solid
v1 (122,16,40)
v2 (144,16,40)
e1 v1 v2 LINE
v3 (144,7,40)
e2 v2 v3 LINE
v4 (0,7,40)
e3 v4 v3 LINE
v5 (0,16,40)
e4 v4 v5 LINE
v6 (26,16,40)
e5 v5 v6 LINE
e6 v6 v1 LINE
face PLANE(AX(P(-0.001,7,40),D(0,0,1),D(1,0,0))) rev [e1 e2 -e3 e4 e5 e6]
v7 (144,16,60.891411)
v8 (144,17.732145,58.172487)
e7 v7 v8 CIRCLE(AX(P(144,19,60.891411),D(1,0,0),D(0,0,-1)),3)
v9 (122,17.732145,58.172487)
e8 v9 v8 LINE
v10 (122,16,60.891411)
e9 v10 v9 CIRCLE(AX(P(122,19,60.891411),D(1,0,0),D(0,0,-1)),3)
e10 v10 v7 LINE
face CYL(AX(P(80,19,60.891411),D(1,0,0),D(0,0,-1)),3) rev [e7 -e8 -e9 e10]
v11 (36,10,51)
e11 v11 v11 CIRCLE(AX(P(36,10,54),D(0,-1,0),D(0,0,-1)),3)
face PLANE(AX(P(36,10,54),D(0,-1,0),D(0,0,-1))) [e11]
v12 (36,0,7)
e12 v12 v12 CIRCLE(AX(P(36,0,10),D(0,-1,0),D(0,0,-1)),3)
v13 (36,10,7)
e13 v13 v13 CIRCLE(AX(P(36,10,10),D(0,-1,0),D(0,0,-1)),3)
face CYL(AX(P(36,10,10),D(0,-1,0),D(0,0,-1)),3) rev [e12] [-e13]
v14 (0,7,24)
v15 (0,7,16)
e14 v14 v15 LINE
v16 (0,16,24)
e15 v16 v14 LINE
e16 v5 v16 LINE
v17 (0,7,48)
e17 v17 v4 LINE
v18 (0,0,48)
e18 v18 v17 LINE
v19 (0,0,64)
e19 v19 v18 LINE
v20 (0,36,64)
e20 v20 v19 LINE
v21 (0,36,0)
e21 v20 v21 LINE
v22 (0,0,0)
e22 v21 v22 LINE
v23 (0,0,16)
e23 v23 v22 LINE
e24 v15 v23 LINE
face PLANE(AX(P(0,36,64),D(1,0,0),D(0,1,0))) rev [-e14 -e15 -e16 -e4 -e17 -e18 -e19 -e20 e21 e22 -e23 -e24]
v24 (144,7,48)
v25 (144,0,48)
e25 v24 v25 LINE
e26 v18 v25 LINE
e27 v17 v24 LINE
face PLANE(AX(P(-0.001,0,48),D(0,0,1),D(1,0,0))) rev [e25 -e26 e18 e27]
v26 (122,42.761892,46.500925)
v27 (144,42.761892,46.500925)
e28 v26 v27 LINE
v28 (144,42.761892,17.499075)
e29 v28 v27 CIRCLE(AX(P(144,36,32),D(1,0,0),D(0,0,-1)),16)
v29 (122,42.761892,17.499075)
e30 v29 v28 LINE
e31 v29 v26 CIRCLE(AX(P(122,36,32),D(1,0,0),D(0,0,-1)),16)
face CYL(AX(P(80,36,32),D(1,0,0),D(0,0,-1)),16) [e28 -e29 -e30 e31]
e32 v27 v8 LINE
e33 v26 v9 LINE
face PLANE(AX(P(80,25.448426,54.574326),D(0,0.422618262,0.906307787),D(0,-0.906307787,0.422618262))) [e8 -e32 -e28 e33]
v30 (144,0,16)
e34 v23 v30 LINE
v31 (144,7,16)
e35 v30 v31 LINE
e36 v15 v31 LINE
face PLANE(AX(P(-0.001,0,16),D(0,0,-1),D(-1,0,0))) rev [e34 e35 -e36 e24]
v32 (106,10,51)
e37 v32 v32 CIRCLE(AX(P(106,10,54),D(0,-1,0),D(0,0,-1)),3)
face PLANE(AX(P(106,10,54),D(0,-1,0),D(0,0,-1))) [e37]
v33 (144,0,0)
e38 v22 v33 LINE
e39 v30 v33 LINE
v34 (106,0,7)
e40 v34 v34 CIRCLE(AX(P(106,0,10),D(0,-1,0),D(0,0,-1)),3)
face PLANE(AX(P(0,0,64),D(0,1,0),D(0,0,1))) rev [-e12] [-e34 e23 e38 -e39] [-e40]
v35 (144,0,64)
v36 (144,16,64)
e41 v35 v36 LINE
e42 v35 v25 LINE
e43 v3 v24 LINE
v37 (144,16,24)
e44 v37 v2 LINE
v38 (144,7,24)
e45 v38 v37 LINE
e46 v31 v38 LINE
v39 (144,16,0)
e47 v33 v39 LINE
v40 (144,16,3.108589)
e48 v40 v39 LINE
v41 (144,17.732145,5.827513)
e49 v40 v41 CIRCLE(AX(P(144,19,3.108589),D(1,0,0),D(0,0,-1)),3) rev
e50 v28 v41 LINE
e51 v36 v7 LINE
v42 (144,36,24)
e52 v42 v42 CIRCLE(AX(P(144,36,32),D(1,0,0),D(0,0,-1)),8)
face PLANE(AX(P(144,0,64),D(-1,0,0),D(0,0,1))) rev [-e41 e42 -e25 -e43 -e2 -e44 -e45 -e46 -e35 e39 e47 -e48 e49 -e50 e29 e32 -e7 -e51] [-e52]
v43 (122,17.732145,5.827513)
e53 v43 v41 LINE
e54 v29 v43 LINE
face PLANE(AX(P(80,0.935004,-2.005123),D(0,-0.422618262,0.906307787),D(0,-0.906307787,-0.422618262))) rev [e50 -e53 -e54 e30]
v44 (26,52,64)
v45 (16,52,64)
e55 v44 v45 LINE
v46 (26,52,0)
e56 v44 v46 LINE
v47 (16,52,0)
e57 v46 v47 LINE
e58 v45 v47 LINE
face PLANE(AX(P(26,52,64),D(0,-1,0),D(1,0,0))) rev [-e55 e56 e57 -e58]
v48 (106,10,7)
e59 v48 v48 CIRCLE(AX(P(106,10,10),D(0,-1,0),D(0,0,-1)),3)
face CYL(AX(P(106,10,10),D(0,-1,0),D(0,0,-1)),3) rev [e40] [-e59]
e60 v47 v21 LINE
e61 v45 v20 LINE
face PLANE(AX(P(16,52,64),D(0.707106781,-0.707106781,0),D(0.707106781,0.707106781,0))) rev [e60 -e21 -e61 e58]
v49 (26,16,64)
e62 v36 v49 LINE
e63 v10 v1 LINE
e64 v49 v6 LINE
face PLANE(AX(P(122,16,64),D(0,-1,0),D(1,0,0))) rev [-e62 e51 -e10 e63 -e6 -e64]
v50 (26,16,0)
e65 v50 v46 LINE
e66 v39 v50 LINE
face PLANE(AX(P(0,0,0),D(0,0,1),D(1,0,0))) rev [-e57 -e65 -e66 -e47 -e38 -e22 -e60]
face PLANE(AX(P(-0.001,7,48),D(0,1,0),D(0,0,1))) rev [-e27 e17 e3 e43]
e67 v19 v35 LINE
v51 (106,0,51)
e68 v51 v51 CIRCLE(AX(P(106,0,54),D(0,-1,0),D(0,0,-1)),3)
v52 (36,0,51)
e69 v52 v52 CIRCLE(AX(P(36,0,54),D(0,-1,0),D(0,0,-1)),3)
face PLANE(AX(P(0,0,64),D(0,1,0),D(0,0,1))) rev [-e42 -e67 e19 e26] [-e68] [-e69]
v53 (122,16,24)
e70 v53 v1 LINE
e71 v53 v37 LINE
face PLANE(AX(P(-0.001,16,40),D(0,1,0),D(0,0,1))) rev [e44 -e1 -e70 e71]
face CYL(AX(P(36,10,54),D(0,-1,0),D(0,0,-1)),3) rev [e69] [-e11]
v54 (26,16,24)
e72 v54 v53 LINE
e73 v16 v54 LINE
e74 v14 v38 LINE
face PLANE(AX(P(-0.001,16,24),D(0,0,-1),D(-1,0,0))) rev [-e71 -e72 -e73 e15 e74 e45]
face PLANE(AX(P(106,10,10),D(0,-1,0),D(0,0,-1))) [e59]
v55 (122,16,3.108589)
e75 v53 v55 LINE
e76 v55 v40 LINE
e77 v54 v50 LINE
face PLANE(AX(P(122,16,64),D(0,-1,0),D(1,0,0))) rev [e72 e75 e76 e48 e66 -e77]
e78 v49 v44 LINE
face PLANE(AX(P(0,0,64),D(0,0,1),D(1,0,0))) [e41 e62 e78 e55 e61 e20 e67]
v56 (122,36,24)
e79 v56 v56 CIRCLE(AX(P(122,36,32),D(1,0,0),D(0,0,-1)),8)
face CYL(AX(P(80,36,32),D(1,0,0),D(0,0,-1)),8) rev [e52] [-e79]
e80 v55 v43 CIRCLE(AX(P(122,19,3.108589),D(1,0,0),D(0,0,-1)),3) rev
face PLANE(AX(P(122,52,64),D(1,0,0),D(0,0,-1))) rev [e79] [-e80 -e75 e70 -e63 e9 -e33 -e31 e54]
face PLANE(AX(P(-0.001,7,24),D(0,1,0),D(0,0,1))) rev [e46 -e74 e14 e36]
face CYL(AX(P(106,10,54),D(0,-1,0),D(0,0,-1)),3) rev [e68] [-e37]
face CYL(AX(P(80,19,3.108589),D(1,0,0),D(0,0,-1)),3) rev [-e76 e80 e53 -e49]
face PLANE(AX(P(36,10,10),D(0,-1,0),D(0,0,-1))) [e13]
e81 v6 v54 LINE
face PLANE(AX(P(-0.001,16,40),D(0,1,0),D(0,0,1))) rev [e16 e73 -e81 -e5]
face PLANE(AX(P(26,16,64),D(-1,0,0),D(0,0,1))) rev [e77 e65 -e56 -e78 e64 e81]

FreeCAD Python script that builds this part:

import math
import FreeCAD as App
import Part
import Sketcher

V = App.Vector
Q = App.Units.Quantity


def add_polygon(sketch, points):
    """Adds a closed chain of lines whose ends are joined by coincident constraints."""
    first, n = sketch.GeometryCount, len(points)
    for a, b in zip(points, points[1:] + points[:1]):
        sketch.addGeometry(Part.LineSegment(App.Vector(*a, 0), App.Vector(*b, 0)), False)
    for i in range(n):
        sketch.addConstraint(Sketcher.Constraint("Coincident", first + i, 2, first + (i + 1) % n, 1))

doc = App.newDocument("Part")
body = doc.addObject("PartDesign::Body", "Body")

# Sketch on XY plane
sketch1 = doc.addObject("Sketcher::SketchObject", "Sketch")
body.addObject(sketch1)
sketch1.AttachmentSupport = (doc.XY_Plane, [""])
sketch1.MapMode = "FlatFace"
add_polygon(sketch1, [(0, 0), (144, 0), (144, 52), (122, 52), (122, 16), (26, 16), (26, 52), (16, 52), (0, 36)])  # lines 0-8
sketch1.addConstraint(Sketcher.Constraint("Horizontal", 0))
sketch1.addConstraint(Sketcher.Constraint("Vertical", 1))
sketch1.addConstraint(Sketcher.Constraint("Horizontal", 2))
sketch1.addConstraint(Sketcher.Constraint("Vertical", 3))
sketch1.addConstraint(Sketcher.Constraint("Horizontal", 4))
sketch1.addConstraint(Sketcher.Constraint("Vertical", 5))
sketch1.addConstraint(Sketcher.Constraint("Horizontal", 6))
sketch1.addConstraint(Sketcher.Constraint("Vertical", 8))
sketch1.addConstraint(Sketcher.Constraint("Coincident", 8, 2, -1, 1))
sketch1.addConstraint(Sketcher.Constraint("Horizontal", 2, 2, 5, 2))
sketch1.addConstraint(Sketcher.Constraint("Equal", 5, 8))
sketch1.addConstraint(Sketcher.Constraint("DistanceX", 0, 1, 0, 2, Q("144 mm")))
sketch1.addConstraint(Sketcher.Constraint("DistanceX", 2, 2, 2, 1, Q("22 mm")))
sketch1.addConstraint(Sketcher.Constraint("DistanceX", 4, 2, 4, 1, Q("96 mm")))
sketch1.addConstraint(Sketcher.Constraint("DistanceX", 6, 2, 6, 1, Q("10 mm")))
sketch1.addConstraint(Sketcher.Constraint("DistanceY", 1, 1, 1, 2, Q("52 mm")))
sketch1.addConstraint(Sketcher.Constraint("DistanceY", 3, 2, 3, 1, Q("36 mm")))
pad1 = doc.addObject("PartDesign::Pad", "Pad")
body.addObject(pad1)
pad1.Profile = sketch1
pad1.Length = 64

# Sketch on YZ plane
sketch2 = doc.addObject("Sketcher::SketchObject", "Sketch001")
body.addObject(sketch2)
sketch2.AttachmentSupport = (doc.YZ_Plane, [""])
sketch2.MapMode = "FlatFace"
sketch2.AttachmentOffset = App.Placement(V(0, 0, 144), App.Rotation())
sketch2.addGeometry(Part.LineSegment(V(52, 64, 0), V(16, 64, 0)), False)
sketch2.addGeometry(Part.LineSegment(V(16, 64, 0), V(16, 60.9, 0)), False)
sketch2.addGeometry(Part.ArcOfCircle(Part.Circle(V(19, 60.9, 0), V(0, 0, 1), 3), math.radians(-180), math.radians(-115)), False)
sketch2.addGeometry(Part.LineSegment(V(17.7, 58.2, 0), V(42.8, 46.5, 0)), False)
sketch2.addGeometry(Part.ArcOfCircle(Part.Circle(V(36, 32, 0), V(0, 0, 1), 16), math.radians(0), math.radians(65)), False)
sketch2.addGeometry(Part.LineSegment(V(52, 32, 0), V(52, 64, 0)), False)
sketch2.addGeometry(Part.LineSegment(V(52, 0, 0), V(52, 32, 0)), False)
sketch2.addGeometry(Part.ArcOfCircle(Part.Circle(V(36, 32, 0), V(0, 0, 1), 16), math.radians(-65), math.radians(0)), False)
sketch2.addGeometry(Part.LineSegment(V(42.8, 17.5, 0), V(17.7, 5.8, 0)), False)
sketch2.addGeometry(Part.ArcOfCircle(Part.Circle(V(19, 3.1, 0), V(0, 0, 1), 3), math.radians(115), math.radians(180)), False)
sketch2.addGeometry(Part.LineSegment(V(16, 3.1, 0), V(16, 0, 0)), False)
sketch2.addGeometry(Part.LineSegment(V(16, 0, 0), V(52, 0, 0)), False)
sketch2.addGeometry(Part.Circle(V(36, 32, 0), V(0, 0, 1), 8), False)
sketch2.addConstraint(Sketcher.Constraint("Coincident", 0, 2, 1, 1))
sketch2.addConstraint(Sketcher.Constraint("Tangent", 1, 2, 2, 1))
sketch2.addConstraint(Sketcher.Constraint("Tangent", 2, 2, 3, 1))
sketch2.addConstraint(Sketcher.Constraint("Tangent", 3, 2, 4, 2))
sketch2.addConstraint(Sketcher.Constraint("Tangent", 4, 1, 5, 1))
sketch2.addConstraint(Sketcher.Constraint("Coincident", 5, 2, 0, 1))
sketch2.addConstraint(Sketcher.Constraint("Tangent", 6, 2, 7, 2))
sketch2.addConstraint(Sketcher.Constraint("Tangent", 7, 1, 8, 1))
sketch2.addConstraint(Sketcher.Constraint("Tangent", 8, 2, 9, 1))
sketch2.addConstraint(Sketcher.Constraint("Tangent", 9, 2, 10, 1))
sketch2.addConstraint(Sketcher.Constraint("Coincident", 10, 2, 11, 1))
sketch2.addConstraint(Sketcher.Constraint("Coincident", 11, 2, 6, 1))
sketch2.addConstraint(Sketcher.Constraint("Horizontal", 0))
sketch2.addConstraint(Sketcher.Constraint("Vertical", 1))
sketch2.addConstraint(Sketcher.Constraint("Vertical", 5))
sketch2.addConstraint(Sketcher.Constraint("Vertical", 6))
sketch2.addConstraint(Sketcher.Constraint("Vertical", 10))
sketch2.addConstraint(Sketcher.Constraint("Horizontal", 11))
sketch2.addConstraint(Sketcher.Constraint("Coincident", 7, 3, 4, 3))
sketch2.addConstraint(Sketcher.Constraint("Coincident", 12, 3, 4, 3))
sketch2.addConstraint(Sketcher.Constraint("Equal", 4, 7))
sketch2.addConstraint(Sketcher.Constraint("Equal", 2, 9))
sketch2.addConstraint(Sketcher.Constraint("PointOnObject", 10, 2, -1))
sketch2.addConstraint(Sketcher.Constraint("Vertical", 2, 3, 9, 3))
sketch2.addConstraint(Sketcher.Constraint("Vertical", 3, 2, 7, 1))
sketch2.addConstraint(Sketcher.Constraint("Equal", 5, 6))
sketch2.addConstraint(Sketcher.Constraint("Diameter", 12, Q("16 mm")))
sketch2.addConstraint(Sketcher.Constraint("Radius", 2, Q("3 mm")))
sketch2.addConstraint(Sketcher.Constraint("Radius", 4, Q("16 mm")))
sketch2.addConstraint(Sketcher.Constraint("DistanceX", 0, 2, 0, 1, Q("36 mm")))
sketch2.addConstraint(Sketcher.Constraint("DistanceY", 5, 1, 5, 2, Q("32 mm")))
sketch2.addConstraint(Sketcher.Constraint("Angle", 3, Q("-25 deg")))
sketch2.addConstraint(Sketcher.Constraint("DistanceX", -1, 1, 2, 3, Q("19 mm")))
pocket1 = doc.addObject("PartDesign::Pocket", "Pocket")
body.addObject(pocket1)
pocket1.Profile = sketch2
pocket1.Length = 64

# Sketch on YZ plane
sketch3 = doc.addObject("Sketcher::SketchObject", "Sketch002")
body.addObject(sketch3)
sketch3.AttachmentSupport = (doc.YZ_Plane, [""])
sketch3.MapMode = "FlatFace"
sketch3.AttachmentOffset = App.Placement(V(0, 0, 144), App.Rotation())
add_polygon(sketch3, [(0, 48), (0, 16), (7, 16), (7, 24), (16, 24), (16, 40), (7, 40), (7, 48)])  # lines 0-7
sketch3.addConstraint(Sketcher.Constraint("Vertical", 0))
sketch3.addConstraint(Sketcher.Constraint("Horizontal", 1))
sketch3.addConstraint(Sketcher.Constraint("Vertical", 2))
sketch3.addConstraint(Sketcher.Constraint("Horizontal", 3))
sketch3.addConstraint(Sketcher.Constraint("Vertical", 4))
sketch3.addConstraint(Sketcher.Constraint("Horizontal", 5))
sketch3.addConstraint(Sketcher.Constraint("Vertical", 6))
sketch3.addConstraint(Sketcher.Constraint("Horizontal", 7))
sketch3.addConstraint(Sketcher.Constraint("PointOnObject", 0, 2, -2))
sketch3.addConstraint(Sketcher.Constraint("Vertical", 2, 2, 5, 2))
sketch3.addConstraint(Sketcher.Constraint("Equal", 2, 6))
sketch3.addConstraint(Sketcher.Constraint("DistanceX", 1, 1, 1, 2, Q("7 mm")))
sketch3.addConstraint(Sketcher.Constraint("DistanceX", 3, 1, 3, 2, Q("9 mm")))
sketch3.addConstraint(Sketcher.Constraint("DistanceY", 0, 2, 0, 1, Q("32 mm")))
sketch3.addConstraint(Sketcher.Constraint("DistanceY", 2, 1, 2, 2, Q("8 mm")))
sketch3.addConstraint(Sketcher.Constraint("DistanceY", -1, 1, 0, 2, Q("16 mm")))
pocket2 = doc.addObject("PartDesign::Pocket", "Pocket001")
body.addObject(pocket2)
pocket2.Profile = sketch3
pocket2.Type = "UpToFirst"

# Sketch on XZ plane
sketch4 = doc.addObject("Sketcher::SketchObject", "Sketch003")
body.addObject(sketch4)
sketch4.AttachmentSupport = (doc.XZ_Plane, [""])
sketch4.MapMode = "FlatFace"
sketch4.addGeometry(Part.Circle(V(36, 54, 0), V(0, 0, 1), 3), False)
sketch4.addGeometry(Part.Circle(V(106, 54, 0), V(0, 0, 1), 3), False)
sketch4.addGeometry(Part.Circle(V(36, 10, 0), V(0, 0, 1), 3), False)
sketch4.addGeometry(Part.Circle(V(106, 10, 0), V(0, 0, 1), 3), False)
sketch4.addConstraint(Sketcher.Constraint("Equal", 0, 1))
sketch4.addConstraint(Sketcher.Constraint("Equal", 1, 2))
sketch4.addConstraint(Sketcher.Constraint("Equal", 2, 3))
sketch4.addConstraint(Sketcher.Constraint("Horizontal", 0, 3, 1, 3))
sketch4.addConstraint(Sketcher.Constraint("Horizontal", 2, 3, 3, 3))
sketch4.addConstraint(Sketcher.Constraint("Vertical", 0, 3, 2, 3))
sketch4.addConstraint(Sketcher.Constraint("Vertical", 1, 3, 3, 3))
sketch4.addConstraint(Sketcher.Constraint("Diameter", 0, Q("6 mm")))
sketch4.addConstraint(Sketcher.Constraint("DistanceX", -1, 1, 0, 3, Q("36 mm")))
sketch4.addConstraint(Sketcher.Constraint("DistanceY", -1, 1, 0, 3, Q("54 mm")))
sketch4.addConstraint(Sketcher.Constraint("DistanceX", -1, 1, 1, 3, Q("106 mm")))
sketch4.addConstraint(Sketcher.Constraint("DistanceY", -1, 1, 2, 3, Q("10 mm")))
pocket3 = doc.addObject("PartDesign::Pocket", "Pocket002")
body.addObject(pocket3)
pocket3.Profile = sketch4
pocket3.Length = 10

doc.recompute()
